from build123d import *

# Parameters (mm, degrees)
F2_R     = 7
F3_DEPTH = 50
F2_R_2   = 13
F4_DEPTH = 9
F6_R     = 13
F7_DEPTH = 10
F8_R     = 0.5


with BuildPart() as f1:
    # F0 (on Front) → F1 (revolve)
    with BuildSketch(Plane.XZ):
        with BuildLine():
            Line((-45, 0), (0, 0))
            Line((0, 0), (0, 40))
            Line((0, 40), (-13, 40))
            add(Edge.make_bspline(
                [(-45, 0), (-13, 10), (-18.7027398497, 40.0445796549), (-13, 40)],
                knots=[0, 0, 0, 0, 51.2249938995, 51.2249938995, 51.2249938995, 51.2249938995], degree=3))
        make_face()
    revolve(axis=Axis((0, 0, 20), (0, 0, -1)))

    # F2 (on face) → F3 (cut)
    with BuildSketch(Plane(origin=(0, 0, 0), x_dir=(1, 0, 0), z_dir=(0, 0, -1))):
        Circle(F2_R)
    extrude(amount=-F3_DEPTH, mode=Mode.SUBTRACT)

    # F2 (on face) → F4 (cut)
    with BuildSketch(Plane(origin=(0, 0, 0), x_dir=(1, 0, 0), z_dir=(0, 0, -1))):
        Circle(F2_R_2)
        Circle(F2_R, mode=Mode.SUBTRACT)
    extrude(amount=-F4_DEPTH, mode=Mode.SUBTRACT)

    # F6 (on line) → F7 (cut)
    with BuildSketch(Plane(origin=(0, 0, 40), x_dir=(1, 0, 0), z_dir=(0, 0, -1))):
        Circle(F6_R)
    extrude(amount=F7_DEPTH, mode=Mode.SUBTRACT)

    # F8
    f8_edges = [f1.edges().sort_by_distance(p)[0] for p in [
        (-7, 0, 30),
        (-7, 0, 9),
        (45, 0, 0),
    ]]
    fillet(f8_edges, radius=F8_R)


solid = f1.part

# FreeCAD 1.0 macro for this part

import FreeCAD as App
import Part
import Sketcher

V = App.Vector
Q = App.Units.Quantity


def edges_at(feature, points):
    """Names of the edges that pass closest to the given points."""
    edges = feature.Shape.Edges
    near = lambda p: min(range(len(edges)), key=lambda i: edges[i].distToShape(Part.Vertex(*p))[0])
    return sorted({f"Edge{near(p) + 1}" for p in points})

doc = App.newDocument("Part")
body = doc.addObject("PartDesign::Body", "Body")

sketch1 = body.newObject("Sketcher::SketchObject", "Sketch")
sketch1.AttachmentSupport = (doc.getObject("XZ_Plane"), [""])
sketch1.MapMode = "FlatFace"
sketch1.addGeometry(Part.LineSegment(V(-45, 0, 0), V(0, 0, 0)), False)
sketch1.addGeometry(Part.LineSegment(V(0, 0, 0), V(0, 40, 0)), False)
sketch1.addGeometry(Part.LineSegment(V(0, 40, 0), V(-13, 40, 0)), False)
sketch1.addGeometry(Part.BSplineCurve([V(-45, 0, 0), V(-13, 10, 0), V(-18.70274, 40.04458, 0), V(-13, 40, 0)], [4, 4], [0, 51.224993899], False, 3, [1, 1, 1, 1], False), False)
sketch1.addConstraint(Sketcher.Constraint("Block", 3))
sketch1.addConstraint(Sketcher.Constraint("Coincident", 0, 2, 1, 1))
sketch1.addConstraint(Sketcher.Constraint("Coincident", 1, 2, 2, 1))
sketch1.addConstraint(Sketcher.Constraint("Coincident", 2, 2, 3, 2))
sketch1.addConstraint(Sketcher.Constraint("Coincident", 3, 1, 0, 1))
sketch1.addConstraint(Sketcher.Constraint("Horizontal", 0))
sketch1.addConstraint(Sketcher.Constraint("Vertical", 1))
sketch1.addConstraint(Sketcher.Constraint("Horizontal", 2))
sketch1.addConstraint(Sketcher.Constraint("PointOnObject", 1, 2, -2))
revolution = body.newObject("PartDesign::Revolution", "Revolution")
revolution.Profile = sketch1
revolution.ReferenceAxis = (sketch1, ["V_Axis"])
revolution.Angle = 360

sketch2 = body.newObject("Sketcher::SketchObject", "Sketch001")
sketch2.AttachmentSupport = (doc.getObject("XY_Plane"), [""])
sketch2.MapMode = "FlatFace"
sketch2.addGeometry(Part.Circle(V(0, 0, 0), V(0, 0, 1), 7), False)
sketch2.addConstraint(Sketcher.Constraint("Coincident", 0, 3, -1, 1))
sketch2.addConstraint(Sketcher.Constraint("Diameter", 0, Q("14 mm")))
pocket1 = body.newObject("PartDesign::Pocket", "Pocket")
pocket1.Profile = sketch2
pocket1.Length = 50
pocket1.Reversed = True

sketch3 = body.newObject("Sketcher::SketchObject", "Sketch002")
sketch3.AttachmentSupport = (doc.getObject("XY_Plane"), [""])
sketch3.MapMode = "FlatFace"
sketch3.addGeometry(Part.Circle(V(0, 0, 0), V(0, 0, 1), 13), False)
sketch3.addGeometry(Part.Circle(V(0, 0, 0), V(0, 0, 1), 7), False)
sketch3.addConstraint(Sketcher.Constraint("Coincident", 0, 3, -1, 1))
sketch3.addConstraint(Sketcher.Constraint("Coincident", 1, 3, -1, 1))
sketch3.addConstraint(Sketcher.Constraint("Diameter", 0, Q("26 mm")))
sketch3.addConstraint(Sketcher.Constraint("Diameter", 1, Q("14 mm")))
pocket2 = body.newObject("PartDesign::Pocket", "Pocket001")
pocket2.Profile = sketch3
pocket2.Length = 9
pocket2.Reversed = True

sketch4 = body.newObject("Sketcher::SketchObject", "Sketch003")
sketch4.AttachmentSupport = (doc.getObject("XY_Plane"), [""])
sketch4.MapMode = "FlatFace"
sketch4.AttachmentOffset = App.Placement(V(0, 0, 40), App.Rotation())
sketch4.addGeometry(Part.Circle(V(0, 0, 0), V(0, 0, 1), 13), False)
sketch4.addConstraint(Sketcher.Constraint("Coincident", 0, 3, -1, 1))
sketch4.addConstraint(Sketcher.Constraint("Diameter", 0, Q("26 mm")))
pocket3 = body.newObject("PartDesign::Pocket", "Pocket002")
pocket3.Profile = sketch4
pocket3.Length = 10
doc.recompute()

fillet = body.newObject("PartDesign::Fillet", "Fillet")
fillet.Base = (pocket3, edges_at(pocket3, [(-7, 0, 30), (-7, 0, 9), (45, 0, 0)]))
fillet.Radius = 0.5

doc.recompute()
